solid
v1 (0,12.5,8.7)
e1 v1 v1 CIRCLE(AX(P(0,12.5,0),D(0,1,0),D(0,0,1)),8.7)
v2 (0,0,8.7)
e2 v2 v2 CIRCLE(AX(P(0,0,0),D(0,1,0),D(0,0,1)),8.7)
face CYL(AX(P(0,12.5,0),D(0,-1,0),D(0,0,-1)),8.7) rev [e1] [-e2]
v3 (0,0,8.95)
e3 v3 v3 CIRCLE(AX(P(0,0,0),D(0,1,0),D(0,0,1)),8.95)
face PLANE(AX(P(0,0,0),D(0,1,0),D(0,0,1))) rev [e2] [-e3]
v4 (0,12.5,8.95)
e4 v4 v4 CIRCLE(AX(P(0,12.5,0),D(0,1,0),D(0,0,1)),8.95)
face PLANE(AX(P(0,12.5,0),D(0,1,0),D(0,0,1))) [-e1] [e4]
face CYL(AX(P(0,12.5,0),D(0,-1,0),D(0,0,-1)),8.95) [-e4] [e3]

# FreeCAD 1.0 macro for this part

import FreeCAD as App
import Part
import Sketcher
from FreeCAD import Vector
Q = App.Units.Quantity

doc = App.newDocument("Part")
body = doc.addObject("PartDesign::Body", "Body")

sketch1 = body.newObject("Sketcher::SketchObject", "Sketch")
sketch1.AttachmentSupport = (doc.getObject("XZ_Plane"), [""])
sketch1.MapMode = "FlatFace"
sketch1.addGeometry([
    Part.Circle(Vector(0, 0, 0), Vector(0, 0, 1), 9),
    Part.Circle(Vector(0, 0, 0), Vector(0, 0, 1), 9),
], False)
sketch1.addConstraint([
    Sketcher.Constraint("Coincident", 0, 3, -1, 1),
    Sketcher.Constraint("Coincident", 1, 3, -1, 1),
    Sketcher.Constraint("Diameter", 0, Q("17.9 mm")),
    Sketcher.Constraint("Diameter", 1, Q("17.4 mm")),
])
pad1 = body.newObject("PartDesign::Pad", "Pad")
pad1.Profile = sketch1
pad1.Length = 12.5
pad1.Reversed = True

doc.recompute()
